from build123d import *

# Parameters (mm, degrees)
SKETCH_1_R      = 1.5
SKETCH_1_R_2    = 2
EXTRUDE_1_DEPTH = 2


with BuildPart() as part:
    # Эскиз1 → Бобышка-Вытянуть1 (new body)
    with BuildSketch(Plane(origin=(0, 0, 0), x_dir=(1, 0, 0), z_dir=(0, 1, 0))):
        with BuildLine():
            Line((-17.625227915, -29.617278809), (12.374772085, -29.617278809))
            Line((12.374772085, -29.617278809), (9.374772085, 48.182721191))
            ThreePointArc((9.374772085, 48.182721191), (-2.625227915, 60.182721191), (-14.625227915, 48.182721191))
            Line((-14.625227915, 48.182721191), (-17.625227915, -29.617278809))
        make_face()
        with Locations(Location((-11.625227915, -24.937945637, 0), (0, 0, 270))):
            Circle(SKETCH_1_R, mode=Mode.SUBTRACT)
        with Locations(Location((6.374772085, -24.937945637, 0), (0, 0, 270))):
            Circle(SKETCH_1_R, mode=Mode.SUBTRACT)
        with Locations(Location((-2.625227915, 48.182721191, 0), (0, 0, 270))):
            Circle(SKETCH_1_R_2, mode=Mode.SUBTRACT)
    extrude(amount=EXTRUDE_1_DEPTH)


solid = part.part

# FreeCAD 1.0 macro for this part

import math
import FreeCAD as App
import Part
import Sketcher

V = App.Vector
Q = App.Units.Quantity

doc = App.newDocument("Part")
params = doc.addObject("Spreadsheet::Sheet", "Params")
for row, (alias, value) in enumerate([
    ("sketch1_diameter", "3 mm"),
    ("sketch1_diameter2", "4 mm"),
    ("sketch1_radius", "12 mm"),
    ("sketch1_width", "30 mm"),
    ("pad1_length", "2 mm"),
], start=1):
    params.set(f"A{row}", alias)
    params.set(f"B{row}", "=" + value)
    params.setAlias(f"B{row}", alias)

body = doc.addObject("PartDesign::Body", "Body")

# Sketch on XZ plane
sketch1 = body.newObject("Sketcher::SketchObject", "Sketch")
sketch1.AttachmentSupport = (doc.getObject("XZ_Plane"), [""])
sketch1.MapMode = "FlatFace"
sketch1.addGeometry([
    Part.LineSegment(V(-17.6, 29.6, 0), V(12.4, 29.6, 0)),  # 0
    Part.LineSegment(V(12.4, 29.6, 0), V(9.4, -48.2, 0)),  # 1
    Part.ArcOfCircle(Part.Circle(V(-2.6, -48.2, 0), V(0, 0, 1), 12), math.radians(180), math.radians(360)),  # 2
    Part.LineSegment(V(-14.6, -48.2, 0), V(-17.6, 29.6, 0)),  # 3
    Part.Circle(V(-11.6, 24.9, 0), V(0, 0, 1), 1.5),  # 4
    Part.Circle(V(6.4, 24.9, 0), V(0, 0, 1), 1.5),  # 5
    Part.Circle(V(-2.6, -48.2, 0), V(0, 0, 1), 2),  # 6
], False)
sketch1.addConstraint([
    Sketcher.Constraint("Coincident", 0, 2, 1, 1),
    Sketcher.Constraint("Coincident", 1, 2, 2, 2),
    Sketcher.Constraint("Coincident", 2, 1, 3, 1),
    Sketcher.Constraint("Coincident", 3, 2, 0, 1),
    Sketcher.Constraint("Horizontal", 0),
    Sketcher.Constraint("Coincident", 6, 3, 2, 3),
    Sketcher.Constraint("Equal", 4, 5),
    Sketcher.Constraint("Horizontal", 4, 3, 5, 3),
    Sketcher.Constraint("Horizontal", 6, 3, 1, 2),
    Sketcher.Constraint("Horizontal", 1, 2, 2, 1),
    Sketcher.Constraint("Equal", 1, 3),
    Sketcher.Constraint("Diameter", 4, Q("3 mm")),
    Sketcher.Constraint("Diameter", 6, Q("4 mm")),
    Sketcher.Constraint("Radius", 2, Q("12 mm")),
    Sketcher.Constraint("DistanceX", 0, 1, 0, 2, Q("30 mm")),
    Sketcher.Constraint("DistanceX", 4, 3, 2, 3, Q("9 mm")),
    Sketcher.Constraint("DistanceX", 4, 3, 5, 3, Q("18 mm")),
    Sketcher.Constraint("DistanceY", 2, 3, 0, 2, Q("77.8 mm")),
    Sketcher.Constraint("DistanceY", 2, 3, -1, 1, Q("48.182721 mm")),
    Sketcher.Constraint("DistanceX", 2, 3, -1, 1, Q("2.625228 mm")),
    Sketcher.Constraint("DistanceY", -1, 1, 4, 3, Q("24.937946 mm")),
])
sketch1.setExpression("Constraints[11]", "Params.sketch1_diameter")
sketch1.setExpression("Constraints[12]", "Params.sketch1_diameter2")
sketch1.setExpression("Constraints[13]", "Params.sketch1_radius")
sketch1.setExpression("Constraints[14]", "Params.sketch1_width")
pad1 = body.newObject("PartDesign::Pad", "Pad")
pad1.Profile = sketch1
pad1.setExpression("Length", "Params.pad1_length")
pad1.Reversed = True

doc.recompute()
